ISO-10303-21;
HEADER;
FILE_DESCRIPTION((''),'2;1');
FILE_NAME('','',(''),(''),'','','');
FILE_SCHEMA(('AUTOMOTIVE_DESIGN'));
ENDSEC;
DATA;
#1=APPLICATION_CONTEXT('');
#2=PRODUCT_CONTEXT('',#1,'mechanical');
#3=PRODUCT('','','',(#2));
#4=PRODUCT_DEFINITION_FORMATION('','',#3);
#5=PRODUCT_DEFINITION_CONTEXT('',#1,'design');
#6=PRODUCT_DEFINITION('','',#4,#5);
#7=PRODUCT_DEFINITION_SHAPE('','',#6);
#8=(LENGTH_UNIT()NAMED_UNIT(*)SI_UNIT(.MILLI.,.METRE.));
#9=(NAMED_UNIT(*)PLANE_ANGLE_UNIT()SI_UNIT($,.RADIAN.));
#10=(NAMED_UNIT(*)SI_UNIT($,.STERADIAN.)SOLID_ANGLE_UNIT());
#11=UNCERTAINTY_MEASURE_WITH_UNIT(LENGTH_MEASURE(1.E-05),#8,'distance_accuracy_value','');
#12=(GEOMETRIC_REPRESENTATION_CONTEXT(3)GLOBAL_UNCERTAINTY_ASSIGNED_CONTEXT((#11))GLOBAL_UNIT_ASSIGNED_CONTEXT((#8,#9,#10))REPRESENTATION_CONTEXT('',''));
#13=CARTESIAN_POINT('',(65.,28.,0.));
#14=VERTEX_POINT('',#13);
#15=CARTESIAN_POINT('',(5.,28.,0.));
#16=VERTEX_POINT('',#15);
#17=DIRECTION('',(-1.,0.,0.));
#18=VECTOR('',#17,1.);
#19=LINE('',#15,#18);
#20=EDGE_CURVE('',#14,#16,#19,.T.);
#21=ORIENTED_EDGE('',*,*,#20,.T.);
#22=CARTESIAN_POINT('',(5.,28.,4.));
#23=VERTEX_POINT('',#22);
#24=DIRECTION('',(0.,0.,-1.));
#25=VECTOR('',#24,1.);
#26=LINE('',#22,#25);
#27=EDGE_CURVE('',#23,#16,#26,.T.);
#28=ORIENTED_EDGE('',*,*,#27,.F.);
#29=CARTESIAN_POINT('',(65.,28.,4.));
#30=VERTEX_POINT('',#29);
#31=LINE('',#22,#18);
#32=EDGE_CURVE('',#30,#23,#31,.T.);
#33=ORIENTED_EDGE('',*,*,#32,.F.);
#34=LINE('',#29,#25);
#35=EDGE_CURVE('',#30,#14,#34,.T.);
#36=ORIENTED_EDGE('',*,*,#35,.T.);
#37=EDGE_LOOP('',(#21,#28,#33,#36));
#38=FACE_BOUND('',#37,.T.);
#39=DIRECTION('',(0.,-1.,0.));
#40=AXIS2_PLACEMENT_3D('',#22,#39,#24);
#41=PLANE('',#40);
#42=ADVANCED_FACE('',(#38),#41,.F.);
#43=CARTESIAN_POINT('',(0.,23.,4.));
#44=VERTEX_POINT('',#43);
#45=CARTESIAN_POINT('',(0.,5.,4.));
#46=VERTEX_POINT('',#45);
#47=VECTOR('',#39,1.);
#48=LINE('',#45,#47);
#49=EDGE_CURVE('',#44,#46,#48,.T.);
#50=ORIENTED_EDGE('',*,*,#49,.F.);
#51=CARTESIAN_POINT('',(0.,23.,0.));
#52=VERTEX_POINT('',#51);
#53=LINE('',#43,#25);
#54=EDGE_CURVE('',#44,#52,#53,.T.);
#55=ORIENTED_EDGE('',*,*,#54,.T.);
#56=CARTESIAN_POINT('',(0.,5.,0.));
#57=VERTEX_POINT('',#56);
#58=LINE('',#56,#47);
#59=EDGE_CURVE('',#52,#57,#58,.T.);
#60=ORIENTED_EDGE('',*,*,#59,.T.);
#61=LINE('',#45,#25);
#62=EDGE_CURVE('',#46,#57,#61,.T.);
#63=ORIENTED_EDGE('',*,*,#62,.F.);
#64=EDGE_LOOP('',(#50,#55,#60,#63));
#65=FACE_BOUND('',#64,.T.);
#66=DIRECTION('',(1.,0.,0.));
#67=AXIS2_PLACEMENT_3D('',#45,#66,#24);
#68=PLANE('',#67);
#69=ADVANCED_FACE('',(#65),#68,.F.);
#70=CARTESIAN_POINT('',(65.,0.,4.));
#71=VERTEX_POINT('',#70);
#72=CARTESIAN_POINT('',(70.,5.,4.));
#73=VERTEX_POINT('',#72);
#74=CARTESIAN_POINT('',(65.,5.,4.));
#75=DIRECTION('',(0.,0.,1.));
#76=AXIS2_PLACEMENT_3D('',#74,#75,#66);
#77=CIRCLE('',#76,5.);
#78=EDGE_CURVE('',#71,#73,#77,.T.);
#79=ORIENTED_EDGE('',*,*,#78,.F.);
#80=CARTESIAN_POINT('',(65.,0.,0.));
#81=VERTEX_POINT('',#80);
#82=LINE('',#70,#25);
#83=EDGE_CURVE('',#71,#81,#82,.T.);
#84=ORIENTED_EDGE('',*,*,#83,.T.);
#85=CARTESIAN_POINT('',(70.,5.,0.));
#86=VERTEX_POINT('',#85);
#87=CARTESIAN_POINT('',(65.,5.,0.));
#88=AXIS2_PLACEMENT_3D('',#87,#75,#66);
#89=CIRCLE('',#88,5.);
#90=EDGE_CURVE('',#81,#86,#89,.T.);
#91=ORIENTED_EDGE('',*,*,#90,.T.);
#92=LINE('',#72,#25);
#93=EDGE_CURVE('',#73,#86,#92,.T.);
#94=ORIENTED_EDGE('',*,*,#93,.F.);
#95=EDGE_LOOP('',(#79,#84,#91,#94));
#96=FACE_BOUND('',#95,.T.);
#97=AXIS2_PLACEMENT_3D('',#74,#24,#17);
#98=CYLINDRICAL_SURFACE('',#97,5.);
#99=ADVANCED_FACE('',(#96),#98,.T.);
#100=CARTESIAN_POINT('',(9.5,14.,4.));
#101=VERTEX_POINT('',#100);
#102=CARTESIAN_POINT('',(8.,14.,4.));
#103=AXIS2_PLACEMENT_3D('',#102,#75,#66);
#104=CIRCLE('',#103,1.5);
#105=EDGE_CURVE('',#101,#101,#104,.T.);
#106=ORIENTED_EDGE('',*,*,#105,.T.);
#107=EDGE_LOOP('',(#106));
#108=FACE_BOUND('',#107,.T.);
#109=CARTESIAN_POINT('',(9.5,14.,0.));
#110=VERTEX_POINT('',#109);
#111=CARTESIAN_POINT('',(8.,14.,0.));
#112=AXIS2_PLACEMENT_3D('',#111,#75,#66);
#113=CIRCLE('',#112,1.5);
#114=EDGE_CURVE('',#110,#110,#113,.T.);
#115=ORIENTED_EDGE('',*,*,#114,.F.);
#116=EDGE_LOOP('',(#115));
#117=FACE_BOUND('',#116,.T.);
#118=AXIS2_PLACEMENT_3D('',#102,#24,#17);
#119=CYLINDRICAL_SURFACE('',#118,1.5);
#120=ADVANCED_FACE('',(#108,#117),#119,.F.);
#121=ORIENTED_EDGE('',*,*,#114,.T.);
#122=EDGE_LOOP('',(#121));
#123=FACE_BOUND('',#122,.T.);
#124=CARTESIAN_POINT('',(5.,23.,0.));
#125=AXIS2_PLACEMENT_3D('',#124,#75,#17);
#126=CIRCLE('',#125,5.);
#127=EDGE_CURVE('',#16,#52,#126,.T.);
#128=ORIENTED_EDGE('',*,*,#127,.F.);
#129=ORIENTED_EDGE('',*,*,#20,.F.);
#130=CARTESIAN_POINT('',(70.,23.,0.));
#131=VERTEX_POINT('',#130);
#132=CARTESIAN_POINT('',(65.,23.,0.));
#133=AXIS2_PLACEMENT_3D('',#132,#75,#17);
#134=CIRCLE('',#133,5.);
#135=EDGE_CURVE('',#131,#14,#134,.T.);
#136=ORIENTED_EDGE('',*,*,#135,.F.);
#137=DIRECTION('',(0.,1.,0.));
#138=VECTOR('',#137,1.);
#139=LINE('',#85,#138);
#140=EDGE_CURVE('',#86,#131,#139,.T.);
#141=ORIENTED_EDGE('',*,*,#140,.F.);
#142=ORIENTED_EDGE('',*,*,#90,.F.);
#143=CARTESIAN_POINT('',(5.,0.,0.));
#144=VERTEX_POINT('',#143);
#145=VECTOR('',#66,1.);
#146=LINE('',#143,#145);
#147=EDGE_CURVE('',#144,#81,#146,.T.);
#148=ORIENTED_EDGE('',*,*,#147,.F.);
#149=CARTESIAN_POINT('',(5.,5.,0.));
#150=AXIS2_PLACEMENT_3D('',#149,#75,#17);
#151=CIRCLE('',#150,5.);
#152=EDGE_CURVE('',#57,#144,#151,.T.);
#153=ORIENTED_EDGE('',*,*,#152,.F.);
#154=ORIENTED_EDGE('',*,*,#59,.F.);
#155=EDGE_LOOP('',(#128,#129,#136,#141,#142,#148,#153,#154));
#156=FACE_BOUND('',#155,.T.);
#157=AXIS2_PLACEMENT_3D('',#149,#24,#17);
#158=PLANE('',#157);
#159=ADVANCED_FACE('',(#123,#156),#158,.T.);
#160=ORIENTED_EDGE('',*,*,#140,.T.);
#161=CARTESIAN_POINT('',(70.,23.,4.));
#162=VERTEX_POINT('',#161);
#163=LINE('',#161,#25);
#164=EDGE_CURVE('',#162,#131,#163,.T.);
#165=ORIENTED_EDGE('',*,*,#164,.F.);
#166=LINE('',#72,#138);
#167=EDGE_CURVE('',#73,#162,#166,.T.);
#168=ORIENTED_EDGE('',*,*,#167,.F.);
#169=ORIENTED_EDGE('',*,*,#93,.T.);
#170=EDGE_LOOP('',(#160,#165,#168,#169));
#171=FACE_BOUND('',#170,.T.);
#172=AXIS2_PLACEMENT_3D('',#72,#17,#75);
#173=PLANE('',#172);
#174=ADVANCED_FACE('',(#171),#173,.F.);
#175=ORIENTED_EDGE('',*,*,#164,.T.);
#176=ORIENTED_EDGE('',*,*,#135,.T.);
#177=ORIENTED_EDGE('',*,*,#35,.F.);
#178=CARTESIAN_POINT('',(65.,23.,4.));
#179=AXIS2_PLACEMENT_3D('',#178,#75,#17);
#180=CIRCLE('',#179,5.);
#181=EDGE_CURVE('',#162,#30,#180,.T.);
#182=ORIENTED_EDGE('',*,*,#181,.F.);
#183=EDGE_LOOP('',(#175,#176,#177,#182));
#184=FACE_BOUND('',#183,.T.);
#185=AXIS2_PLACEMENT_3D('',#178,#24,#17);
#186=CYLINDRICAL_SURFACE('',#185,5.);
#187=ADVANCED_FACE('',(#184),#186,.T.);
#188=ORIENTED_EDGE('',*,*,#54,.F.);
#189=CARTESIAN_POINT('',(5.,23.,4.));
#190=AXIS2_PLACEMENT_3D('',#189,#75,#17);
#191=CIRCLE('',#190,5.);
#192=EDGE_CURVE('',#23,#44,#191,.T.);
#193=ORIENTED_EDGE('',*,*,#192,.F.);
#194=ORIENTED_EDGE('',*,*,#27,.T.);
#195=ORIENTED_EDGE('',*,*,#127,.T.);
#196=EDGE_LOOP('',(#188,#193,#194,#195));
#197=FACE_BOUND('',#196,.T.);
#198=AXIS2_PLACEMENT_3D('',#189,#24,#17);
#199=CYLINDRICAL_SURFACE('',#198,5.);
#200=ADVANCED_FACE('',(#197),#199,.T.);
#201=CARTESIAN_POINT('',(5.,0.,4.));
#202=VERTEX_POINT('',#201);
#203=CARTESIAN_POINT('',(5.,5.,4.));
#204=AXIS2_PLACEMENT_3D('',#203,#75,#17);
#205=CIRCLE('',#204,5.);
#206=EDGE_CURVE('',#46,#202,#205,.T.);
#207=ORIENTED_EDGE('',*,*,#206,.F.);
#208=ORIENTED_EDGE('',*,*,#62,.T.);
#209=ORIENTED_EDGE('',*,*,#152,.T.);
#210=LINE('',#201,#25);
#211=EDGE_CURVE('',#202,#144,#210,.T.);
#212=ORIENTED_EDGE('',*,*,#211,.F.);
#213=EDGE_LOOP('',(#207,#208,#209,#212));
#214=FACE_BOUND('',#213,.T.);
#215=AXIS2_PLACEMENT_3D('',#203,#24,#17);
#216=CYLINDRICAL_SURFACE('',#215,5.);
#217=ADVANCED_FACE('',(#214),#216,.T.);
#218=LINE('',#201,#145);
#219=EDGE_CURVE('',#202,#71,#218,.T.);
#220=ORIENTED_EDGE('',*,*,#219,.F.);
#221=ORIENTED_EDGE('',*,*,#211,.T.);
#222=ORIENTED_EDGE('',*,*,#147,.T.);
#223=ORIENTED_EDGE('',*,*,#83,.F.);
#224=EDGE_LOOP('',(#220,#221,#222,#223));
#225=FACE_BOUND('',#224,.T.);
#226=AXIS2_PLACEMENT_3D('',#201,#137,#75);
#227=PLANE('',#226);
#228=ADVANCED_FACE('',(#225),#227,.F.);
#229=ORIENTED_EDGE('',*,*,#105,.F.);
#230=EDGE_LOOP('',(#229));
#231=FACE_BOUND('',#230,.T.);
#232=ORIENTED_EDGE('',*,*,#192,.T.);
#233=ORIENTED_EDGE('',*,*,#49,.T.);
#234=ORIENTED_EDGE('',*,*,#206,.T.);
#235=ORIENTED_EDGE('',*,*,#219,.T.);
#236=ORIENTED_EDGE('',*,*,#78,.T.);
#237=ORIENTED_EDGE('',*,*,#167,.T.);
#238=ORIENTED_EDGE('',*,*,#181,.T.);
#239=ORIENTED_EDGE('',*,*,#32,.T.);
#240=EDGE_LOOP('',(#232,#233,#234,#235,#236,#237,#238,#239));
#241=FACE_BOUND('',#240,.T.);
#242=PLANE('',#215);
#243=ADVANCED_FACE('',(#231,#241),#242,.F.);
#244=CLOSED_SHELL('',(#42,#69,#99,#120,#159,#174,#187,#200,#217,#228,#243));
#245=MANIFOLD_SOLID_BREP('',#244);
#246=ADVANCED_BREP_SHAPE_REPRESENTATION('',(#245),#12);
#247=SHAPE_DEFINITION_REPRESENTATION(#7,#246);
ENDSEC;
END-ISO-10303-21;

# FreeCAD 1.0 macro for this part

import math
import FreeCAD as App
import Part
import Sketcher
Q = App.Units.Quantity

doc = App.newDocument("Part")
body = doc.addObject("PartDesign::Body", "Body")

# Sketch on XY plane
sketch1 = doc.addObject("Sketcher::SketchObject", "Sketch")
body.addObject(sketch1)
sketch1.AttachmentSupport = (doc.XY_Plane, [""])
sketch1.MapMode = "FlatFace"
sketch1.addGeometry([
    Part.LineSegment(App.Vector(5, 0, 0), App.Vector(65, 0, 0)),  # 0
    Part.ArcOfCircle(Part.Circle(App.Vector(65, 5, 0), App.Vector(0, 0, 1), 5), math.radians(-90), math.radians(0)),  # 1
    Part.LineSegment(App.Vector(70, 5, 0), App.Vector(70, 23, 0)),  # 2
    Part.ArcOfCircle(Part.Circle(App.Vector(65, 23, 0), App.Vector(0, 0, 1), 5), math.radians(0), math.radians(90)),  # 3
    Part.LineSegment(App.Vector(65, 28, 0), App.Vector(5, 28, 0)),  # 4
    Part.ArcOfCircle(Part.Circle(App.Vector(5, 23, 0), App.Vector(0, 0, 1), 5), math.radians(90), math.radians(180)),  # 5
    Part.LineSegment(App.Vector(0, 23, 0), App.Vector(0, 5, 0)),  # 6
    Part.ArcOfCircle(Part.Circle(App.Vector(5, 5, 0), App.Vector(0, 0, 1), 5), math.radians(180), math.radians(270)),  # 7
    Part.Circle(App.Vector(8, 14, 0), App.Vector(0, 0, 1), 1.5),  # 8
], False)
sketch1.addConstraint([
    Sketcher.Constraint("Tangent", 0, 2, 1, 1),
    Sketcher.Constraint("Tangent", 1, 2, 2, 1),
    Sketcher.Constraint("Tangent", 2, 2, 3, 1),
    Sketcher.Constraint("Tangent", 3, 2, 4, 1),
    Sketcher.Constraint("Tangent", 4, 2, 5, 1),
    Sketcher.Constraint("Tangent", 5, 2, 6, 1),
    Sketcher.Constraint("Tangent", 6, 2, 7, 1),
    Sketcher.Constraint("Tangent", 7, 2, 0, 1),
    Sketcher.Constraint("Horizontal", 0),
    Sketcher.Constraint("Vertical", 2),
    Sketcher.Constraint("Horizontal", 4),
    Sketcher.Constraint("Vertical", 6),
    Sketcher.Constraint("Equal", 1, 3),
    Sketcher.Constraint("Equal", 3, 5),
    Sketcher.Constraint("Equal", 5, 7),
    Sketcher.Constraint("PointOnObject", 0, 2, -1),
    Sketcher.Constraint("PointOnObject", 5, 2, -2),
    Sketcher.Constraint("Diameter", 8, Q("3 mm")),
    Sketcher.Constraint("Radius", 1, Q("5 mm")),
    Sketcher.Constraint("DistanceX", 0, 1, 0, 2, Q("60 mm")),
    Sketcher.Constraint("DistanceY", 2, 1, 2, 2, Q("18 mm")),
    Sketcher.Constraint("DistanceX", -1, 1, 8, 3, Q("8 mm")),
    Sketcher.Constraint("DistanceY", -1, 1, 8, 3, Q("14 mm")),
])
pad1 = doc.addObject("PartDesign::Pad", "Pad")
body.addObject(pad1)
pad1.Profile = sketch1
pad1.Length = 4

doc.recompute()
